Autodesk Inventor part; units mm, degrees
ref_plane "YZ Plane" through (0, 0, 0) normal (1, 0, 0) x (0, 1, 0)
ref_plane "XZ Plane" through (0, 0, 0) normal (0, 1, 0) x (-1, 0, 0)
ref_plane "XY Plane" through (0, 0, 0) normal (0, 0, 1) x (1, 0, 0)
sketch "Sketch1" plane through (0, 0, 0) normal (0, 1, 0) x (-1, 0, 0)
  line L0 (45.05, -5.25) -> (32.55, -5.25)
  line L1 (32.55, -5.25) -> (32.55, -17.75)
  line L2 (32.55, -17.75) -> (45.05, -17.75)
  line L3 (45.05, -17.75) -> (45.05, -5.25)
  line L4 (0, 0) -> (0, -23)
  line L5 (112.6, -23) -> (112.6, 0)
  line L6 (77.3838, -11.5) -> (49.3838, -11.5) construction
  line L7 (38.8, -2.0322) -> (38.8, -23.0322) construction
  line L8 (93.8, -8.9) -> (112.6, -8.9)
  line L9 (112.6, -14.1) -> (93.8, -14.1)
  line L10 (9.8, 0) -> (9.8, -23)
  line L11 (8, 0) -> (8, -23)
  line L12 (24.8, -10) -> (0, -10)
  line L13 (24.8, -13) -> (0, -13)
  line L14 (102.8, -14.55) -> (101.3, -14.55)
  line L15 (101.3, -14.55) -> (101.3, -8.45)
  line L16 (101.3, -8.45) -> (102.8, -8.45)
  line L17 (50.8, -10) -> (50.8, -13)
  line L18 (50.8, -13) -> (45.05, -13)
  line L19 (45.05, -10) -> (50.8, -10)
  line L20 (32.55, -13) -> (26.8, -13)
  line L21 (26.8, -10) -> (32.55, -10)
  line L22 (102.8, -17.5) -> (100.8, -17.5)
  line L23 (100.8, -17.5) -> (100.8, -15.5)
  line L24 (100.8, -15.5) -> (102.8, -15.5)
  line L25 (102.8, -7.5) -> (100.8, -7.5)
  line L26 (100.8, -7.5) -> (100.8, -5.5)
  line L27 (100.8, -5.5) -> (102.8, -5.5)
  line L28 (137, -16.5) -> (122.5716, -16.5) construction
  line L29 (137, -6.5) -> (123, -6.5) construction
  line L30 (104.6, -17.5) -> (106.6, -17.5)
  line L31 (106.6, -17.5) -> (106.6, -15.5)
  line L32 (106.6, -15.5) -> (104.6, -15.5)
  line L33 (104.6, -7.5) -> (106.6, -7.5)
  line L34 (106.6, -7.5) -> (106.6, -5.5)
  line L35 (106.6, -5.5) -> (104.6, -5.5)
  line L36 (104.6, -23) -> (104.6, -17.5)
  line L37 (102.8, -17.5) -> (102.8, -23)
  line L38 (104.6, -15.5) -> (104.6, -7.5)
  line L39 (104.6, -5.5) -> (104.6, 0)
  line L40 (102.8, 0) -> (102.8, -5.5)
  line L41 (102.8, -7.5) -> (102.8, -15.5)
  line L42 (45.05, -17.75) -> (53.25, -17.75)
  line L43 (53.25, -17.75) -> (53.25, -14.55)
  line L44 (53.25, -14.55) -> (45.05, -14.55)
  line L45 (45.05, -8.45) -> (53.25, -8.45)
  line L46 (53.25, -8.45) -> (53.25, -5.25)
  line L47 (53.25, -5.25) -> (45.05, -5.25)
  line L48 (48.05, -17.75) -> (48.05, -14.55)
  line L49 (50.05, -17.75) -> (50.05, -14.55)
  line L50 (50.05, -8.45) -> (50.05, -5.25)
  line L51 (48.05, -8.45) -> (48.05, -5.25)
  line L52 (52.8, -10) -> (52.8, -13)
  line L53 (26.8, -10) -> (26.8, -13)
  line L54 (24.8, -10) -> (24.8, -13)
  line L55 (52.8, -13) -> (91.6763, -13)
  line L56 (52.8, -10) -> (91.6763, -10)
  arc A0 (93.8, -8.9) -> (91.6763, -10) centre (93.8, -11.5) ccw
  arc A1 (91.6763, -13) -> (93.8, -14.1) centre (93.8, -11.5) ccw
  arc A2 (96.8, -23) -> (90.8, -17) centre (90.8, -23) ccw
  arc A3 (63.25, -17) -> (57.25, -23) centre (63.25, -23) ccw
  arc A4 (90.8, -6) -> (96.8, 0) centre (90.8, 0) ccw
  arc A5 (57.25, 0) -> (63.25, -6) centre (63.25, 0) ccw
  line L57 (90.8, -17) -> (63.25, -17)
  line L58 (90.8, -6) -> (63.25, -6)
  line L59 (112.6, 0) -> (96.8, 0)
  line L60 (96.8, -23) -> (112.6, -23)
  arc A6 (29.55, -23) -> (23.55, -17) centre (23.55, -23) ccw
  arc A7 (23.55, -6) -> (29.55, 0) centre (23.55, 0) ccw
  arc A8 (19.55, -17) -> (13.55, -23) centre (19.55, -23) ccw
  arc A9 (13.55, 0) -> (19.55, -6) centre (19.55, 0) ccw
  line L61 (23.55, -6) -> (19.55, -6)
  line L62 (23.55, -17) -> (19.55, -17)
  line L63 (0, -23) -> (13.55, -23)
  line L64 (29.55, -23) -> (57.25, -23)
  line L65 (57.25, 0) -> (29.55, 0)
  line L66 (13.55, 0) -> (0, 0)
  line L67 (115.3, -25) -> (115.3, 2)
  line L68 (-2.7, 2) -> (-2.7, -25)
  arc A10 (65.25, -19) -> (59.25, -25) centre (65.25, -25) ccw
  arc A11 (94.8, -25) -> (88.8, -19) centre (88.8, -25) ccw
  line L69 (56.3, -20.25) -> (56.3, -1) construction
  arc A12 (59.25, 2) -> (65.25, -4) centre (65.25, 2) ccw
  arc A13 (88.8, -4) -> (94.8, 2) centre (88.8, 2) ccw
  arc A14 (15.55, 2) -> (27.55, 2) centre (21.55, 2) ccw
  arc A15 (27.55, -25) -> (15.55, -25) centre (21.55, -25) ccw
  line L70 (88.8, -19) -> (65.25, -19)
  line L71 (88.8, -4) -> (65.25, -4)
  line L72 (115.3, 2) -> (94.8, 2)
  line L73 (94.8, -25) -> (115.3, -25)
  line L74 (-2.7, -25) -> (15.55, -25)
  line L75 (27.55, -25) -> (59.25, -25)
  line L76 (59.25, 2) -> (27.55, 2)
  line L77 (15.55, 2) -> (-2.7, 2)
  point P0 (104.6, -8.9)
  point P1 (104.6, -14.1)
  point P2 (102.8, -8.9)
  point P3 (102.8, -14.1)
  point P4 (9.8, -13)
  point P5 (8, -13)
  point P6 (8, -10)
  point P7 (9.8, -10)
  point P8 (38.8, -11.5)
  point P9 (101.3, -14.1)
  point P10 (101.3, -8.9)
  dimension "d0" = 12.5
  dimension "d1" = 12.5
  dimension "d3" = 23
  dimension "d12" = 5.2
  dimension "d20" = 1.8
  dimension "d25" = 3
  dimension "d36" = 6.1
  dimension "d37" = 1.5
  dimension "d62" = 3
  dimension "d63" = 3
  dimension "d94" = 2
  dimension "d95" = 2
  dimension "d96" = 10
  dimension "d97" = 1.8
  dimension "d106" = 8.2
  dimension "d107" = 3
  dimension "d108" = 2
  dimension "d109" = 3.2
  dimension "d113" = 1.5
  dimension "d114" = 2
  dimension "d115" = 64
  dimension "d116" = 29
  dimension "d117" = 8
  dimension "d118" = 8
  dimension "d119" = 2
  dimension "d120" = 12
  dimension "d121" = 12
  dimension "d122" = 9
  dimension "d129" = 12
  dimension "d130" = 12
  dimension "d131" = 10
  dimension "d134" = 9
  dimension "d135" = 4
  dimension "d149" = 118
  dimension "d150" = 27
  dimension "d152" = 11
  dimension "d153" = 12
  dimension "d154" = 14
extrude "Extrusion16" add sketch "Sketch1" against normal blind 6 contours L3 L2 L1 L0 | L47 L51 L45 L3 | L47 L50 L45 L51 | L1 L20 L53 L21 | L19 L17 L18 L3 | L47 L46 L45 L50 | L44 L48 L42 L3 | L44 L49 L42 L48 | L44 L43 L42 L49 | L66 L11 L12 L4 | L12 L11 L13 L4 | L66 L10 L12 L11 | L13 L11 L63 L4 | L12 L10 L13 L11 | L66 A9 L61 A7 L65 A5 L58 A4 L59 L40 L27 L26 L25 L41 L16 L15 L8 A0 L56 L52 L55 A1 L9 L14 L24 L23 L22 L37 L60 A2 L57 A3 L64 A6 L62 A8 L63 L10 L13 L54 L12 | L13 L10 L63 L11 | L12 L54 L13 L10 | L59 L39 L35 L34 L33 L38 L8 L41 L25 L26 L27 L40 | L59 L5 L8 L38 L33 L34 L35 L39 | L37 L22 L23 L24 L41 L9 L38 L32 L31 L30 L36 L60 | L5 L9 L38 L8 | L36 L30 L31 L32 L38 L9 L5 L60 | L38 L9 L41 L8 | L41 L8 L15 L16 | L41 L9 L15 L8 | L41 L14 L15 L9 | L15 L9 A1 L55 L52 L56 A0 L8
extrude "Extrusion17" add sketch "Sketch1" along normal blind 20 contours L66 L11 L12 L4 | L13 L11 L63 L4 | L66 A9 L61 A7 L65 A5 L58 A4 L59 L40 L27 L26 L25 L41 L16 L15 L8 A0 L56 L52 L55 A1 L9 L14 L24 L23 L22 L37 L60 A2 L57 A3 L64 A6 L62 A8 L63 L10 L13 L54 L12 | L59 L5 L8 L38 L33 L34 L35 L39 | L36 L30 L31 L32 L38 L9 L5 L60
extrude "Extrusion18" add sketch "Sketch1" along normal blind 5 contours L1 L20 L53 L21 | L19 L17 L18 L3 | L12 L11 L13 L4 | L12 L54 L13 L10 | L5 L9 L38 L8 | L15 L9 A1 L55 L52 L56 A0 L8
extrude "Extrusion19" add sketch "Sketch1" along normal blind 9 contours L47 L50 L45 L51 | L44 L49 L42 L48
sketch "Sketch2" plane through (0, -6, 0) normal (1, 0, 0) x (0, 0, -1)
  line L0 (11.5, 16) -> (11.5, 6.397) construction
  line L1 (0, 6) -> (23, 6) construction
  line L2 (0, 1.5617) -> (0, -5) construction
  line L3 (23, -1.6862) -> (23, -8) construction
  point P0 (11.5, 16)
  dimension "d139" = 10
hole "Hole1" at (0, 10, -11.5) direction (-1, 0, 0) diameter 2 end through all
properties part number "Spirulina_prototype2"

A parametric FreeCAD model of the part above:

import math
import FreeCAD as App
import Part
import Sketcher
Q = App.Units.Quantity


def add_polygon(sketch, points):
    """Adds a closed chain of lines whose ends are joined by coincident constraints."""
    first, n = sketch.GeometryCount, len(points)
    for a, b in zip(points, points[1:] + points[:1]):
        sketch.addGeometry(Part.LineSegment(App.Vector(*a, 0), App.Vector(*b, 0)), False)
    for i in range(n):
        sketch.addConstraint(Sketcher.Constraint("Coincident", first + i, 2, first + (i + 1) % n, 1))

doc = App.newDocument("Part")
body = doc.addObject("PartDesign::Body", "Body")

# Sketch on XZ plane
sketch1 = body.newObject("Sketcher::SketchObject", "Sketch")
sketch1.AttachmentSupport = (doc.getObject("XZ_Plane"), [""])
sketch1.MapMode = "FlatFace"
sketch1.addGeometry(Part.LineSegment(App.Vector(-13.6, 0, 0), App.Vector(0, 0, 0)), False)
sketch1.addGeometry(Part.LineSegment(App.Vector(0, 0, 0), App.Vector(0, -23, 0)), False)
sketch1.addGeometry(Part.LineSegment(App.Vector(0, -23, 0), App.Vector(-13.6, -23, 0)), False)
sketch1.addGeometry(Part.ArcOfCircle(Part.Circle(App.Vector(-19.6, -23, 0), App.Vector(0, 0, 1), 6), math.radians(0), math.radians(90)), False)
sketch1.addGeometry(Part.LineSegment(App.Vector(-19.6, -17, 0), App.Vector(-23.6, -17, 0)), False)
sketch1.addGeometry(Part.ArcOfCircle(Part.Circle(App.Vector(-23.6, -23, 0), App.Vector(0, 0, 1), 6), math.radians(90), math.radians(180)), False)
sketch1.addGeometry(Part.LineSegment(App.Vector(-29.6, -23, 0), App.Vector(-57.2, -23, 0)), False)
sketch1.addGeometry(Part.ArcOfCircle(Part.Circle(App.Vector(-63.2, -23, 0), App.Vector(0, 0, 1), 6), math.radians(0), math.radians(90)), False)
sketch1.addGeometry(Part.LineSegment(App.Vector(-63.2, -17, 0), App.Vector(-90.8, -17, 0)), False)
sketch1.addGeometry(Part.ArcOfCircle(Part.Circle(App.Vector(-90.8, -23, 0), App.Vector(0, 0, 1), 6), math.radians(90), math.radians(180)), False)
sketch1.addGeometry(Part.LineSegment(App.Vector(-96.8, -23, 0), App.Vector(-112.6, -23, 0)), False)
sketch1.addGeometry(Part.LineSegment(App.Vector(-112.6, -23, 0), App.Vector(-112.6, 0, 0)), False)
sketch1.addGeometry(Part.LineSegment(App.Vector(-112.6, 0, 0), App.Vector(-96.8, 0, 0)), False)
sketch1.addGeometry(Part.ArcOfCircle(Part.Circle(App.Vector(-90.8, 0, 0), App.Vector(0, 0, 1), 6), math.radians(180), math.radians(270)), False)
sketch1.addGeometry(Part.LineSegment(App.Vector(-90.8, -6, 0), App.Vector(-63.2, -6, 0)), False)
sketch1.addGeometry(Part.ArcOfCircle(Part.Circle(App.Vector(-63.2, 0, 0), App.Vector(0, 0, 1), 6), math.radians(-90), math.radians(0)), False)
sketch1.addGeometry(Part.LineSegment(App.Vector(-57.2, 0, 0), App.Vector(-29.6, 0, 0)), False)
sketch1.addGeometry(Part.ArcOfCircle(Part.Circle(App.Vector(-23.6, 0, 0), App.Vector(0, 0, 1), 6), math.radians(180), math.radians(270)), False)
sketch1.addGeometry(Part.LineSegment(App.Vector(-23.6, -6, 0), App.Vector(-19.6, -6, 0)), False)
sketch1.addGeometry(Part.ArcOfCircle(Part.Circle(App.Vector(-19.6, 0, 0), App.Vector(0, 0, 1), 6), math.radians(-90), math.radians(0)), False)
sketch1.addConstraint(Sketcher.Constraint("Coincident", 0, 2, 1, 1))
sketch1.addConstraint(Sketcher.Constraint("Coincident", 1, 2, 2, 1))
sketch1.addConstraint(Sketcher.Constraint("Coincident", 2, 2, 3, 1))
sketch1.addConstraint(Sketcher.Constraint("Tangent", 3, 2, 4, 1))
sketch1.addConstraint(Sketcher.Constraint("Tangent", 4, 2, 5, 1))
sketch1.addConstraint(Sketcher.Constraint("Coincident", 5, 2, 6, 1))
sketch1.addConstraint(Sketcher.Constraint("Coincident", 6, 2, 7, 1))
sketch1.addConstraint(Sketcher.Constraint("Tangent", 7, 2, 8, 1))
sketch1.addConstraint(Sketcher.Constraint("Tangent", 8, 2, 9, 1))
sketch1.addConstraint(Sketcher.Constraint("Coincident", 9, 2, 10, 1))
sketch1.addConstraint(Sketcher.Constraint("Coincident", 10, 2, 11, 1))
sketch1.addConstraint(Sketcher.Constraint("Coincident", 11, 2, 12, 1))
sketch1.addConstraint(Sketcher.Constraint("Coincident", 12, 2, 13, 1))
sketch1.addConstraint(Sketcher.Constraint("Tangent", 13, 2, 14, 1))
sketch1.addConstraint(Sketcher.Constraint("Tangent", 14, 2, 15, 1))
sketch1.addConstraint(Sketcher.Constraint("Coincident", 15, 2, 16, 1))
sketch1.addConstraint(Sketcher.Constraint("Coincident", 16, 2, 17, 1))
sketch1.addConstraint(Sketcher.Constraint("Tangent", 17, 2, 18, 1))
sketch1.addConstraint(Sketcher.Constraint("Tangent", 18, 2, 19, 1))
sketch1.addConstraint(Sketcher.Constraint("Coincident", 19, 2, 0, 1))
sketch1.addConstraint(Sketcher.Constraint("Horizontal", 0))
sketch1.addConstraint(Sketcher.Constraint("Vertical", 1))
sketch1.addConstraint(Sketcher.Constraint("Horizontal", 2))
sketch1.addConstraint(Sketcher.Constraint("Horizontal", 4))
sketch1.addConstraint(Sketcher.Constraint("Horizontal", 6))
sketch1.addConstraint(Sketcher.Constraint("Horizontal", 8))
sketch1.addConstraint(Sketcher.Constraint("Horizontal", 10))
sketch1.addConstraint(Sketcher.Constraint("Vertical", 11))
sketch1.addConstraint(Sketcher.Constraint("Horizontal", 12))
sketch1.addConstraint(Sketcher.Constraint("Horizontal", 14))
sketch1.addConstraint(Sketcher.Constraint("Horizontal", 16))
sketch1.addConstraint(Sketcher.Constraint("Horizontal", 18))
sketch1.addConstraint(Sketcher.Constraint("Coincident", 0, 2, -1, 1))
sketch1.addConstraint(Sketcher.Constraint("Equal", 3, 5))
sketch1.addConstraint(Sketcher.Constraint("Equal", 5, 7))
sketch1.addConstraint(Sketcher.Constraint("Equal", 7, 9))
sketch1.addConstraint(Sketcher.Constraint("Equal", 9, 13))
sketch1.addConstraint(Sketcher.Constraint("Equal", 13, 15))
sketch1.addConstraint(Sketcher.Constraint("Equal", 15, 17))
sketch1.addConstraint(Sketcher.Constraint("Equal", 17, 19))
sketch1.addConstraint(Sketcher.Constraint("PointOnObject", 13, 3, -1))
sketch1.addConstraint(Sketcher.Constraint("PointOnObject", 17, 3, -1))
sketch1.addConstraint(Sketcher.Constraint("PointOnObject", 11, 2, -1))
sketch1.addConstraint(Sketcher.Constraint("PointOnObject", 15, 2, -1))
sketch1.addConstraint(Sketcher.Constraint("Horizontal", 5, 3, 7, 3))
sketch1.addConstraint(Sketcher.Constraint("Horizontal", 9, 3, 1, 2))
sketch1.addConstraint(Sketcher.Constraint("Horizontal", 2, 2, 5, 2))
sketch1.addConstraint(Sketcher.Constraint("Horizontal", 6, 2, 9, 2))
sketch1.addConstraint(Sketcher.Constraint("Vertical", 9, 3, 13, 3))
sketch1.addConstraint(Sketcher.Constraint("Vertical", 7, 3, 15, 3))
sketch1.addConstraint(Sketcher.Constraint("Vertical", 5, 3, 17, 3))
sketch1.addConstraint(Sketcher.Constraint("Vertical", 3, 3, 19, 3))
sketch1.addConstraint(Sketcher.Constraint("Radius", 3, Q("6 mm")))
sketch1.addConstraint(Sketcher.Constraint("DistanceX", 4, 2, 4, 1, Q("4 mm")))
sketch1.addConstraint(Sketcher.Constraint("DistanceY", 1, 2, 1, 1, Q("23 mm")))
sketch1.addConstraint(Sketcher.Constraint("DistanceX", 6, 2, 6, 1, Q("27.7 mm")))
sketch1.addConstraint(Sketcher.Constraint("DistanceX", 10, 2, 10, 1, Q("15.8 mm")))
sketch1.addConstraint(Sketcher.Constraint("DistanceX", 0, 1, 0, 2, Q("13.55 mm")))
sketch1.addConstraint(Sketcher.Constraint("DistanceX", 8, 2, 8, 1, Q("27.55 mm")))
pad1 = body.newObject("PartDesign::Pad", "Pad")
pad1.Profile = sketch1
pad1.Length = 6

# Sketch on XZ plane
sketch2 = body.newObject("Sketcher::SketchObject", "Sketch001")
sketch2.AttachmentSupport = (doc.getObject("XZ_Plane"), [""])
sketch2.MapMode = "FlatFace"
add_polygon(sketch2, [(-8, 0), (0, 0), (0, -10), (-8, -10)])  # lines 0-3
add_polygon(sketch2, [(-8, -13), (0, -13), (0, -23), (-8, -23)])  # lines 4-7
sketch2.addGeometry(Part.LineSegment(App.Vector(-13.55, 0, 0), App.Vector(-9.8, 0, 0)), False)  # 8
sketch2.addGeometry(Part.LineSegment(App.Vector(-9.8, 0, 0), App.Vector(-9.8, -10, 0)), False)  # 9
sketch2.addGeometry(Part.LineSegment(App.Vector(-9.8, -10, 0), App.Vector(-24.8, -10, 0)), False)  # 10
sketch2.addGeometry(Part.LineSegment(App.Vector(-24.8, -10, 0), App.Vector(-24.8, -13, 0)), False)  # 11
sketch2.addGeometry(Part.LineSegment(App.Vector(-24.8, -13, 0), App.Vector(-9.8, -13, 0)), False)  # 12
sketch2.addGeometry(Part.LineSegment(App.Vector(-9.8, -13, 0), App.Vector(-9.8, -23, 0)), False)  # 13
sketch2.addGeometry(Part.LineSegment(App.Vector(-9.8, -23, 0), App.Vector(-13.55, -23, 0)), False)  # 14
sketch2.addGeometry(Part.ArcOfCircle(Part.Circle(App.Vector(-19.55, -23, 0), App.Vector(0, 0, 1), 6), math.radians(0), math.radians(90)), False)  # 15
sketch2.addGeometry(Part.LineSegment(App.Vector(-19.55, -17, 0), App.Vector(-23.55, -17, 0)), False)  # 16
sketch2.addGeometry(Part.ArcOfCircle(Part.Circle(App.Vector(-23.55, -23, 0), App.Vector(0, 0, 1), 6), math.radians(90), math.radians(180)), False)  # 17
sketch2.addGeometry(Part.LineSegment(App.Vector(-29.55, -23, 0), App.Vector(-57.25, -23, 0)), False)  # 18
sketch2.addGeometry(Part.ArcOfCircle(Part.Circle(App.Vector(-63.25, -23, 0), App.Vector(0, 0, 1), 6), math.radians(0), math.radians(90)), False)  # 19
sketch2.addGeometry(Part.LineSegment(App.Vector(-63.25, -17, 0), App.Vector(-90.8, -17, 0)), False)  # 20
sketch2.addGeometry(Part.ArcOfCircle(Part.Circle(App.Vector(-90.8, -23, 0), App.Vector(0, 0, 1), 6), math.radians(90), math.radians(180)), False)  # 21
sketch2.addGeometry(Part.LineSegment(App.Vector(-96.8, -23, 0), App.Vector(-102.8, -23, 0)), False)  # 22
sketch2.addGeometry(Part.LineSegment(App.Vector(-102.8, -23, 0), App.Vector(-102.8, -17.5, 0)), False)  # 23
sketch2.addGeometry(Part.LineSegment(App.Vector(-102.8, -17.5, 0), App.Vector(-100.8, -17.5, 0)), False)  # 24
sketch2.addGeometry(Part.LineSegment(App.Vector(-100.8, -17.5, 0), App.Vector(-100.8, -15.5, 0)), False)  # 25
sketch2.addGeometry(Part.LineSegment(App.Vector(-100.8, -15.5, 0), App.Vector(-102.8, -15.5, 0)), False)  # 26
sketch2.addGeometry(Part.LineSegment(App.Vector(-102.8, -15.5, 0), App.Vector(-102.8, -14.55, 0)), False)  # 27
sketch2.addGeometry(Part.LineSegment(App.Vector(-102.8, -14.55, 0), App.Vector(-101.3, -14.55, 0)), False)  # 28
sketch2.addGeometry(Part.LineSegment(App.Vector(-101.3, -14.55, 0), App.Vector(-101.3, -14.1, 0)), False)  # 29
sketch2.addGeometry(Part.LineSegment(App.Vector(-101.3, -14.1, 0), App.Vector(-93.8, -14.1, 0)), False)  # 30
sketch2.addGeometry(Part.ArcOfCircle(Part.Circle(App.Vector(-93.8, -11.5, 0), App.Vector(0, 0, 1), 2.6), math.radians(-90), math.radians(-35)), False)  # 31
sketch2.addGeometry(Part.LineSegment(App.Vector(-91.68, -13, 0), App.Vector(-52.8, -13, 0)), False)  # 32
sketch2.addGeometry(Part.LineSegment(App.Vector(-52.8, -13, 0), App.Vector(-52.8, -10, 0)), False)  # 33
sketch2.addGeometry(Part.LineSegment(App.Vector(-52.8, -10, 0), App.Vector(-91.68, -10, 0)), False)  # 34
sketch2.addGeometry(Part.ArcOfCircle(Part.Circle(App.Vector(-93.8, -11.5, 0), App.Vector(0, 0, 1), 2.6), math.radians(35), math.radians(90)), False)  # 35
sketch2.addGeometry(Part.LineSegment(App.Vector(-93.8, -8.9, 0), App.Vector(-101.3, -8.9, 0)), False)  # 36
sketch2.addGeometry(Part.LineSegment(App.Vector(-101.3, -8.9, 0), App.Vector(-101.3, -8.45, 0)), False)  # 37
sketch2.addGeometry(Part.LineSegment(App.Vector(-101.3, -8.45, 0), App.Vector(-102.8, -8.45, 0)), False)  # 38
sketch2.addGeometry(Part.LineSegment(App.Vector(-102.8, -8.45, 0), App.Vector(-102.8, -7.5, 0)), False)  # 39
sketch2.addGeometry(Part.LineSegment(App.Vector(-102.8, -7.5, 0), App.Vector(-100.8, -7.5, 0)), False)  # 40
sketch2.addGeometry(Part.LineSegment(App.Vector(-100.8, -7.5, 0), App.Vector(-100.8, -5.5, 0)), False)  # 41
sketch2.addGeometry(Part.LineSegment(App.Vector(-100.8, -5.5, 0), App.Vector(-102.8, -5.5, 0)), False)  # 42
sketch2.addGeometry(Part.LineSegment(App.Vector(-102.8, -5.5, 0), App.Vector(-102.8, 0, 0)), False)  # 43
sketch2.addGeometry(Part.LineSegment(App.Vector(-102.8, 0, 0), App.Vector(-96.8, 0, 0)), False)  # 44
sketch2.addGeometry(Part.ArcOfCircle(Part.Circle(App.Vector(-90.8, 0, 0), App.Vector(0, 0, 1), 6), math.radians(180), math.radians(270)), False)  # 45
sketch2.addGeometry(Part.LineSegment(App.Vector(-90.8, -6, 0), App.Vector(-63.25, -6, 0)), False)  # 46
sketch2.addGeometry(Part.ArcOfCircle(Part.Circle(App.Vector(-63.25, 0, 0), App.Vector(0, 0, 1), 6), math.radians(-90), math.radians(0)), False)  # 47
sketch2.addGeometry(Part.LineSegment(App.Vector(-57.25, 0, 0), App.Vector(-29.55, 0, 0)), False)  # 48
sketch2.addGeometry(Part.ArcOfCircle(Part.Circle(App.Vector(-23.55, 0, 0), App.Vector(0, 0, 1), 6), math.radians(180), math.radians(270)), False)  # 49
sketch2.addGeometry(Part.LineSegment(App.Vector(-23.55, -6, 0), App.Vector(-19.55, -6, 0)), False)  # 50
sketch2.addGeometry(Part.ArcOfCircle(Part.Circle(App.Vector(-19.55, 0, 0), App.Vector(0, 0, 1), 6), math.radians(-90), math.radians(0)), False)  # 51
add_polygon(sketch2, [(-32.55, -5.25), (-53.25, -5.25), (-53.25, -8.45), (-45.05, -8.45), (-45.05, -10), (-50.8, -10), (-50.8, -13), (-45.05, -13), (-45.05, -14.55), (-53.25, -14.55), (-53.25, -17.75), (-32.55, -17.75), (-32.55, -13), (-26.8, -13), (-26.8, -10), (-32.55, -10)])  # lines 52-67
add_polygon(sketch2, [(-112.6, 0), (-104.6, 0), (-104.6, -5.5), (-106.6, -5.5), (-106.6, -7.5), (-104.6, -7.5), (-104.6, -8.9), (-112.6, -8.9)])  # lines 68-75
add_polygon(sketch2, [(-104.6, -17.5), (-104.6, -23), (-112.6, -23), (-112.6, -14.1), (-104.6, -14.1), (-104.6, -15.5), (-106.6, -15.5), (-106.6, -17.5)])  # lines 76-83
sketch2.addConstraint(Sketcher.Constraint("Coincident", 8, 2, 9, 1))
sketch2.addConstraint(Sketcher.Constraint("Coincident", 9, 2, 10, 1))
sketch2.addConstraint(Sketcher.Constraint("Coincident", 10, 2, 11, 1))
sketch2.addConstraint(Sketcher.Constraint("Coincident", 11, 2, 12, 1))
sketch2.addConstraint(Sketcher.Constraint("Coincident", 12, 2, 13, 1))
sketch2.addConstraint(Sketcher.Constraint("Coincident", 13, 2, 14, 1))
sketch2.addConstraint(Sketcher.Constraint("Coincident", 14, 2, 15, 1))
sketch2.addConstraint(Sketcher.Constraint("Tangent", 15, 2, 16, 1))
sketch2.addConstraint(Sketcher.Constraint("Tangent", 16, 2, 17, 1))
sketch2.addConstraint(Sketcher.Constraint("Coincident", 17, 2, 18, 1))
sketch2.addConstraint(Sketcher.Constraint("Coincident", 18, 2, 19, 1))
sketch2.addConstraint(Sketcher.Constraint("Tangent", 19, 2, 20, 1))
sketch2.addConstraint(Sketcher.Constraint("Tangent", 20, 2, 21, 1))
sketch2.addConstraint(Sketcher.Constraint("Coincident", 21, 2, 22, 1))
sketch2.addConstraint(Sketcher.Constraint("Coincident", 22, 2, 23, 1))
sketch2.addConstraint(Sketcher.Constraint("Coincident", 23, 2, 24, 1))
sketch2.addConstraint(Sketcher.Constraint("Coincident", 24, 2, 25, 1))
sketch2.addConstraint(Sketcher.Constraint("Coincident", 25, 2, 26, 1))
sketch2.addConstraint(Sketcher.Constraint("Coincident", 26, 2, 27, 1))
sketch2.addConstraint(Sketcher.Constraint("Coincident", 27, 2, 28, 1))
sketch2.addConstraint(Sketcher.Constraint("Coincident", 28, 2, 29, 1))
sketch2.addConstraint(Sketcher.Constraint("Coincident", 29, 2, 30, 1))
sketch2.addConstraint(Sketcher.Constraint("Tangent", 30, 2, 31, 1))
sketch2.addConstraint(Sketcher.Constraint("Coincident", 31, 2, 32, 1))
sketch2.addConstraint(Sketcher.Constraint("Coincident", 32, 2, 33, 1))
sketch2.addConstraint(Sketcher.Constraint("Coincident", 33, 2, 34, 1))
sketch2.addConstraint(Sketcher.Constraint("Coincident", 34, 2, 35, 1))
sketch2.addConstraint(Sketcher.Constraint("Tangent", 35, 2, 36, 1))
sketch2.addConstraint(Sketcher.Constraint("Coincident", 36, 2, 37, 1))
sketch2.addConstraint(Sketcher.Constraint("Coincident", 37, 2, 38, 1))
sketch2.addConstraint(Sketcher.Constraint("Coincident", 38, 2, 39, 1))
sketch2.addConstraint(Sketcher.Constraint("Coincident", 39, 2, 40, 1))
sketch2.addConstraint(Sketcher.Constraint("Coincident", 40, 2, 41, 1))
sketch2.addConstraint(Sketcher.Constraint("Coincident", 41, 2, 42, 1))
sketch2.addConstraint(Sketcher.Constraint("Coincident", 42, 2, 43, 1))
sketch2.addConstraint(Sketcher.Constraint("Coincident", 43, 2, 44, 1))
sketch2.addConstraint(Sketcher.Constraint("Coincident", 44, 2, 45, 1))
sketch2.addConstraint(Sketcher.Constraint("Tangent", 45, 2, 46, 1))
sketch2.addConstraint(Sketcher.Constraint("Tangent", 46, 2, 47, 1))
sketch2.addConstraint(Sketcher.Constraint("Coincident", 47, 2, 48, 1))
sketch2.addConstraint(Sketcher.Constraint("Coincident", 48, 2, 49, 1))
sketch2.addConstraint(Sketcher.Constraint("Tangent", 49, 2, 50, 1))
sketch2.addConstraint(Sketcher.Constraint("Tangent", 50, 2, 51, 1))
sketch2.addConstraint(Sketcher.Constraint("Coincident", 51, 2, 8, 1))
sketch2.addConstraint(Sketcher.Constraint("Horizontal", 0))
sketch2.addConstraint(Sketcher.Constraint("Vertical", 1))
sketch2.addConstraint(Sketcher.Constraint("Horizontal", 2))
sketch2.addConstraint(Sketcher.Constraint("Vertical", 3))
sketch2.addConstraint(Sketcher.Constraint("Horizontal", 4))
sketch2.addConstraint(Sketcher.Constraint("Vertical", 5))
sketch2.addConstraint(Sketcher.Constraint("Horizontal", 6))
sketch2.addConstraint(Sketcher.Constraint("Vertical", 7))
sketch2.addConstraint(Sketcher.Constraint("Horizontal", 8))
sketch2.addConstraint(Sketcher.Constraint("Vertical", 9))
sketch2.addConstraint(Sketcher.Constraint("Horizontal", 10))
sketch2.addConstraint(Sketcher.Constraint("Vertical", 11))
sketch2.addConstraint(Sketcher.Constraint("Horizontal", 12))
sketch2.addConstraint(Sketcher.Constraint("Vertical", 13))
sketch2.addConstraint(Sketcher.Constraint("Horizontal", 14))
sketch2.addConstraint(Sketcher.Constraint("Horizontal", 16))
sketch2.addConstraint(Sketcher.Constraint("Horizontal", 18))
sketch2.addConstraint(Sketcher.Constraint("Horizontal", 20))
sketch2.addConstraint(Sketcher.Constraint("Horizontal", 22))
sketch2.addConstraint(Sketcher.Constraint("Vertical", 23))
sketch2.addConstraint(Sketcher.Constraint("Horizontal", 24))
sketch2.addConstraint(Sketcher.Constraint("Vertical", 25))
sketch2.addConstraint(Sketcher.Constraint("Horizontal", 26))
sketch2.addConstraint(Sketcher.Constraint("Vertical", 27))
sketch2.addConstraint(Sketcher.Constraint("Horizontal", 28))
sketch2.addConstraint(Sketcher.Constraint("Vertical", 29))
sketch2.addConstraint(Sketcher.Constraint("Horizontal", 30))
sketch2.addConstraint(Sketcher.Constraint("Horizontal", 32))
sketch2.addConstraint(Sketcher.Constraint("Vertical", 33))
sketch2.addConstraint(Sketcher.Constraint("Horizontal", 34))
sketch2.addConstraint(Sketcher.Constraint("Horizontal", 36))
sketch2.addConstraint(Sketcher.Constraint("Vertical", 37))
sketch2.addConstraint(Sketcher.Constraint("Horizontal", 38))
sketch2.addConstraint(Sketcher.Constraint("Vertical", 39))
sketch2.addConstraint(Sketcher.Constraint("Horizontal", 40))
sketch2.addConstraint(Sketcher.Constraint("Vertical", 41))
sketch2.addConstraint(Sketcher.Constraint("Horizontal", 42))
sketch2.addConstraint(Sketcher.Constraint("Vertical", 43))
sketch2.addConstraint(Sketcher.Constraint("Horizontal", 44))
sketch2.addConstraint(Sketcher.Constraint("Horizontal", 46))
sketch2.addConstraint(Sketcher.Constraint("Horizontal", 48))
sketch2.addConstraint(Sketcher.Constraint("Horizontal", 50))
sketch2.addConstraint(Sketcher.Constraint("Horizontal", 52))
sketch2.addConstraint(Sketcher.Constraint("Vertical", 53))
sketch2.addConstraint(Sketcher.Constraint("Horizontal", 54))
sketch2.addConstraint(Sketcher.Constraint("Vertical", 55))
sketch2.addConstraint(Sketcher.Constraint("Horizontal", 56))
sketch2.addConstraint(Sketcher.Constraint("Vertical", 57))
sketch2.addConstraint(Sketcher.Constraint("Horizontal", 58))
sketch2.addConstraint(Sketcher.Constraint("Vertical", 59))
sketch2.addConstraint(Sketcher.Constraint("Horizontal", 60))
sketch2.addConstraint(Sketcher.Constraint("Vertical", 61))
sketch2.addConstraint(Sketcher.Constraint("Horizontal", 62))
sketch2.addConstraint(Sketcher.Constraint("Vertical", 63))
sketch2.addConstraint(Sketcher.Constraint("Horizontal", 64))
sketch2.addConstraint(Sketcher.Constraint("Vertical", 65))
sketch2.addConstraint(Sketcher.Constraint("Horizontal", 66))
sketch2.addConstraint(Sketcher.Constraint("Vertical", 67))
sketch2.addConstraint(Sketcher.Constraint("Horizontal", 68))
sketch2.addConstraint(Sketcher.Constraint("Vertical", 69))
sketch2.addConstraint(Sketcher.Constraint("Horizontal", 70))
sketch2.addConstraint(Sketcher.Constraint("Vertical", 71))
sketch2.addConstraint(Sketcher.Constraint("Horizontal", 72))
sketch2.addConstraint(Sketcher.Constraint("Vertical", 73))
sketch2.addConstraint(Sketcher.Constraint("Horizontal", 74))
sketch2.addConstraint(Sketcher.Constraint("Vertical", 75))
sketch2.addConstraint(Sketcher.Constraint("Vertical", 76))
sketch2.addConstraint(Sketcher.Constraint("Horizontal", 77))
sketch2.addConstraint(Sketcher.Constraint("Vertical", 78))
sketch2.addConstraint(Sketcher.Constraint("Horizontal", 79))
sketch2.addConstraint(Sketcher.Constraint("Vertical", 80))
sketch2.addConstraint(Sketcher.Constraint("Horizontal", 81))
sketch2.addConstraint(Sketcher.Constraint("Vertical", 82))
sketch2.addConstraint(Sketcher.Constraint("Horizontal", 83))
sketch2.addConstraint(Sketcher.Constraint("Coincident", 0, 2, -1, 1))
sketch2.addConstraint(Sketcher.Constraint("Coincident", 35, 3, 31, 3))
sketch2.addConstraint(Sketcher.Constraint("Equal", 15, 17))
sketch2.addConstraint(Sketcher.Constraint("Equal", 17, 19))
sketch2.addConstraint(Sketcher.Constraint("Equal", 19, 21))
sketch2.addConstraint(Sketcher.Constraint("Equal", 31, 35))
sketch2.addConstraint(Sketcher.Constraint("Equal", 21, 45))
sketch2.addConstraint(Sketcher.Constraint("Equal", 45, 47))
sketch2.addConstraint(Sketcher.Constraint("Equal", 47, 49))
sketch2.addConstraint(Sketcher.Constraint("Equal", 49, 51))
sketch2.addConstraint(Sketcher.Constraint("PointOnObject", 45, 3, -1))
sketch2.addConstraint(Sketcher.Constraint("PointOnObject", 49, 3, -1))
sketch2.addConstraint(Sketcher.Constraint("PointOnObject", 4, 2, -2))
sketch2.addConstraint(Sketcher.Constraint("PointOnObject", 8, 2, -1))
sketch2.addConstraint(Sketcher.Constraint("PointOnObject", 43, 2, -1))
sketch2.addConstraint(Sketcher.Constraint("PointOnObject", 47, 2, -1))
sketch2.addConstraint(Sketcher.Constraint("PointOnObject", 68, 2, -1))
sketch2.addConstraint(Sketcher.Constraint("Horizontal", 17, 3, 19, 3))
sketch2.addConstraint(Sketcher.Constraint("Horizontal", 21, 3, 5, 2))
sketch2.addConstraint(Sketcher.Constraint("Horizontal", 2, 2, 9, 2))
sketch2.addConstraint(Sketcher.Constraint("Horizontal", 7, 2, 11, 2))
sketch2.addConstraint(Sketcher.Constraint("Horizontal", 6, 2, 13, 2))
sketch2.addConstraint(Sketcher.Constraint("Horizontal", 14, 2, 17, 2))
sketch2.addConstraint(Sketcher.Constraint("Horizontal", 18, 2, 21, 2))
sketch2.addConstraint(Sketcher.Constraint("Horizontal", 12, 2, 31, 2))
sketch2.addConstraint(Sketcher.Constraint("Horizontal", 10, 2, 33, 2))
sketch2.addConstraint(Sketcher.Constraint("Horizontal", 38, 2, 53, 2))
sketch2.addConstraint(Sketcher.Constraint("Horizontal", 34, 2, 55, 2))
sketch2.addConstraint(Sketcher.Constraint("Horizontal", 32, 2, 57, 2))
sketch2.addConstraint(Sketcher.Constraint("Horizontal", 28, 2, 59, 2))
sketch2.addConstraint(Sketcher.Constraint("Horizontal", 58, 2, 63, 2))
sketch2.addConstraint(Sketcher.Constraint("Horizontal", 56, 2, 65, 2))
sketch2.addConstraint(Sketcher.Constraint("Horizontal", 42, 2, 69, 2))
sketch2.addConstraint(Sketcher.Constraint("Horizontal", 40, 2, 71, 2))
sketch2.addConstraint(Sketcher.Constraint("Horizontal", 36, 2, 73, 2))
sketch2.addConstraint(Sketcher.Constraint("Horizontal", 22, 2, 76, 2))
sketch2.addConstraint(Sketcher.Constraint("Horizontal", 30, 2, 78, 2))
sketch2.addConstraint(Sketcher.Constraint("Horizontal", 26, 2, 80, 2))
sketch2.addConstraint(Sketcher.Constraint("Horizontal", 24, 2, 82, 2))
sketch2.addConstraint(Sketcher.Constraint("Vertical", 21, 3, 45, 3))
sketch2.addConstraint(Sketcher.Constraint("Vertical", 19, 3, 47, 3))
sketch2.addConstraint(Sketcher.Constraint("Vertical", 17, 3, 49, 3))
sketch2.addConstraint(Sketcher.Constraint("Vertical", 15, 3, 51, 3))
sketch2.addConstraint(Sketcher.Constraint("Vertical", 3, 2, 6, 2))
sketch2.addConstraint(Sketcher.Constraint("Vertical", 9, 2, 12, 2))
sketch2.addConstraint(Sketcher.Constraint("Vertical", 23, 2, 26, 2))
sketch2.addConstraint(Sketcher.Constraint("Vertical", 31, 2, 34, 2))
sketch2.addConstraint(Sketcher.Constraint("Vertical", 29, 2, 36, 2))
sketch2.addConstraint(Sketcher.Constraint("Vertical", 27, 2, 38, 2))
sketch2.addConstraint(Sketcher.Constraint("Vertical", 25, 2, 40, 2))
sketch2.addConstraint(Sketcher.Constraint("Vertical", 39, 2, 42, 2))
sketch2.addConstraint(Sketcher.Constraint("Vertical", 55, 2, 58, 2))
sketch2.addConstraint(Sketcher.Constraint("Vertical", 53, 2, 60, 2))
sketch2.addConstraint(Sketcher.Constraint("Vertical", 63, 2, 66, 2))
sketch2.addConstraint(Sketcher.Constraint("Vertical", 69, 2, 72, 2))
sketch2.addConstraint(Sketcher.Constraint("Vertical", 73, 2, 76, 2))
sketch2.addConstraint(Sketcher.Constraint("Vertical", 75, 2, 77, 2))
sketch2.addConstraint(Sketcher.Constraint("Vertical", 76, 2, 79, 2))
sketch2.addConstraint(Sketcher.Constraint("Vertical", 71, 2, 81, 2))
sketch2.addConstraint(Sketcher.Constraint("Equal", 58, 64))
sketch2.addConstraint(Sketcher.Constraint("Equal", 6, 68))
sketch2.addConstraint(Sketcher.Constraint("Equal", 42, 70))
sketch2.addConstraint(Sketcher.Constraint("Equal", 3, 5))
sketch2.addConstraint(Sketcher.Constraint("Equal", 83, 25))
sketch2.addConstraint(Sketcher.Constraint("Equal", 29, 37))
sketch2.addConstraint(Sketcher.Constraint("Equal", 27, 39))
sketch2.addConstraint(Sketcher.Constraint("Equal", 25, 41))
sketch2.addConstraint(Sketcher.Constraint("Equal", 53, 61))
sketch2.addConstraint(Sketcher.Constraint("Radius", 15, Q("6 mm")))
sketch2.addConstraint(Sketcher.Constraint("Radius", 31, Q("2.6 mm")))
sketch2.addConstraint(Sketcher.Constraint("DistanceX", 0, 1, 0, 2, Q("8 mm")))
sketch2.addConstraint(Sketcher.Constraint("DistanceX", 16, 2, 16, 1, Q("4 mm")))
sketch2.addConstraint(Sketcher.Constraint("DistanceX", 24, 1, 24, 2, Q("2 mm")))
sketch2.addConstraint(Sketcher.Constraint("DistanceY", 1, 2, 1, 1, Q("10 mm")))
sketch2.addConstraint(Sketcher.Constraint("DistanceY", 11, 2, 11, 1, Q("3 mm")))
sketch2.addConstraint(Sketcher.Constraint("DistanceX", 28, 1, 28, 2, Q("1.5 mm")))
sketch2.addConstraint(Sketcher.Constraint("DistanceX", 54, 1, 54, 2, Q("8.2 mm")))
sketch2.addConstraint(Sketcher.Constraint("DistanceY", 53, 2, 53, 1, Q("3.2 mm")))
sketch2.addConstraint(Sketcher.Constraint("DistanceX", 10, 2, 10, 1, Q("15 mm")))
sketch2.addConstraint(Sketcher.Constraint("DistanceX", 22, 2, 22, 1, Q("6 mm")))
sketch2.addConstraint(Sketcher.Constraint("DistanceX", 18, 2, 18, 1, Q("27.7 mm")))
sketch2.addConstraint(Sketcher.Constraint("DistanceX", 30, 1, 30, 2, Q("7.5 mm")))
sketch2.addConstraint(Sketcher.Constraint("DistanceX", 52, 2, 52, 1, Q("20.7 mm")))
sketch2.addConstraint(Sketcher.Constraint("DistanceY", 23, 1, 23, 2, Q("5.5 mm")))
sketch2.addConstraint(Sketcher.Constraint("DistanceX", 8, 1, 8, 2, Q("3.75 mm")))
sketch2.addConstraint(Sketcher.Constraint("DistanceX", 20, 2, 20, 1, Q("27.55 mm")))
sketch2.addConstraint(Sketcher.Constraint("DistanceX", 56, 2, 56, 1, Q("5.75 mm")))
sketch2.addConstraint(Sketcher.Constraint("DistanceY", 27, 1, 27, 2, Q("0.95 mm")))
sketch2.addConstraint(Sketcher.Constraint("DistanceX", 21, 3, -1, 1, Q("90.8 mm")))
sketch2.addConstraint(Sketcher.Constraint("DistanceX", 32, 2, -1, 1, Q("52.8 mm")))
sketch2.addConstraint(Sketcher.Constraint("DistanceX", 56, 2, -1, 1, Q("50.8 mm")))
sketch2.addConstraint(Sketcher.Constraint("DistanceX", 68, 2, -1, 1, Q("104.6 mm")))
pad2 = body.newObject("PartDesign::Pad", "Pad001")
pad2.Profile = sketch2
pad2.Length = 20
pad2.Reversed = True

# Sketch on XZ plane
sketch3 = body.newObject("Sketcher::SketchObject", "Sketch002")
sketch3.AttachmentSupport = (doc.getObject("XZ_Plane"), [""])
sketch3.MapMode = "FlatFace"
add_polygon(sketch3, [(-32.5, -13), (-32.5, -10), (-26.8, -10), (-26.8, -13)])  # lines 0-3
add_polygon(sketch3, [(-50.8, -10), (-45, -10), (-45, -13), (-50.8, -13)])  # lines 4-7
add_polygon(sketch3, [(-8, -10), (0, -10), (0, -13), (-8, -13)])  # lines 8-11
add_polygon(sketch3, [(-24.8, -10), (-9.8, -10), (-9.8, -13), (-24.8, -13)])  # lines 12-15
add_polygon(sketch3, [(-112.6, -14.1), (-112.6, -8.9), (-104.6, -8.9), (-104.6, -14.1)])  # lines 16-19
sketch3.addGeometry(Part.LineSegment(App.Vector(-101.3, -14.1, 0), App.Vector(-101.3, -8.9, 0)), False)  # 20
sketch3.addGeometry(Part.LineSegment(App.Vector(-101.3, -8.9, 0), App.Vector(-93.8, -8.9, 0)), False)  # 21
sketch3.addGeometry(Part.ArcOfCircle(Part.Circle(App.Vector(-93.8, -11.5, 0), App.Vector(0, 0, 1), 2.6), math.radians(35), math.radians(90)), False)  # 22
sketch3.addGeometry(Part.LineSegment(App.Vector(-91.7, -10, 0), App.Vector(-52.8, -10, 0)), False)  # 23
sketch3.addGeometry(Part.LineSegment(App.Vector(-52.8, -10, 0), App.Vector(-52.8, -13, 0)), False)  # 24
sketch3.addGeometry(Part.LineSegment(App.Vector(-52.8, -13, 0), App.Vector(-91.7, -13, 0)), False)  # 25
sketch3.addGeometry(Part.ArcOfCircle(Part.Circle(App.Vector(-93.8, -11.5, 0), App.Vector(0, 0, 1), 2.6), math.radians(-90), math.radians(-35)), False)  # 26
sketch3.addGeometry(Part.LineSegment(App.Vector(-93.8, -14.1, 0), App.Vector(-101.3, -14.1, 0)), False)  # 27
sketch3.addConstraint(Sketcher.Constraint("Coincident", 20, 2, 21, 1))
sketch3.addConstraint(Sketcher.Constraint("Tangent", 21, 2, 22, 2))
sketch3.addConstraint(Sketcher.Constraint("Coincident", 22, 1, 23, 1))
sketch3.addConstraint(Sketcher.Constraint("Coincident", 23, 2, 24, 1))
sketch3.addConstraint(Sketcher.Constraint("Coincident", 24, 2, 25, 1))
sketch3.addConstraint(Sketcher.Constraint("Coincident", 25, 2, 26, 2))
sketch3.addConstraint(Sketcher.Constraint("Tangent", 26, 1, 27, 1))
sketch3.addConstraint(Sketcher.Constraint("Coincident", 27, 2, 20, 1))
sketch3.addConstraint(Sketcher.Constraint("Vertical", 0))
sketch3.addConstraint(Sketcher.Constraint("Horizontal", 1))
sketch3.addConstraint(Sketcher.Constraint("Vertical", 2))
sketch3.addConstraint(Sketcher.Constraint("Horizontal", 3))
sketch3.addConstraint(Sketcher.Constraint("Horizontal", 4))
sketch3.addConstraint(Sketcher.Constraint("Vertical", 5))
sketch3.addConstraint(Sketcher.Constraint("Horizontal", 6))
sketch3.addConstraint(Sketcher.Constraint("Vertical", 7))
sketch3.addConstraint(Sketcher.Constraint("Horizontal", 8))
sketch3.addConstraint(Sketcher.Constraint("Vertical", 9))
sketch3.addConstraint(Sketcher.Constraint("Horizontal", 10))
sketch3.addConstraint(Sketcher.Constraint("Vertical", 11))
sketch3.addConstraint(Sketcher.Constraint("Horizontal", 12))
sketch3.addConstraint(Sketcher.Constraint("Vertical", 13))
sketch3.addConstraint(Sketcher.Constraint("Horizontal", 14))
sketch3.addConstraint(Sketcher.Constraint("Vertical", 15))
sketch3.addConstraint(Sketcher.Constraint("Vertical", 16))
sketch3.addConstraint(Sketcher.Constraint("Horizontal", 17))
sketch3.addConstraint(Sketcher.Constraint("Vertical", 18))
sketch3.addConstraint(Sketcher.Constraint("Horizontal", 19))
sketch3.addConstraint(Sketcher.Constraint("Vertical", 20))
sketch3.addConstraint(Sketcher.Constraint("Horizontal", 21))
sketch3.addConstraint(Sketcher.Constraint("Horizontal", 23))
sketch3.addConstraint(Sketcher.Constraint("Vertical", 24))
sketch3.addConstraint(Sketcher.Constraint("Horizontal", 25))
sketch3.addConstraint(Sketcher.Constraint("Horizontal", 27))
sketch3.addConstraint(Sketcher.Constraint("Coincident", 26, 3, 22, 3))
sketch3.addConstraint(Sketcher.Constraint("Equal", 22, 26))
sketch3.addConstraint(Sketcher.Constraint("PointOnObject", 8, 2, -2))
sketch3.addConstraint(Sketcher.Constraint("Horizontal", 1, 2, 4, 2))
sketch3.addConstraint(Sketcher.Constraint("Horizontal", 3, 2, 5, 2))
sketch3.addConstraint(Sketcher.Constraint("Horizontal", 7, 2, 8, 2))
sketch3.addConstraint(Sketcher.Constraint("Horizontal", 6, 2, 9, 2))
sketch3.addConstraint(Sketcher.Constraint("Horizontal", 11, 2, 12, 2))
sketch3.addConstraint(Sketcher.Constraint("Horizontal", 10, 2, 13, 2))
sketch3.addConstraint(Sketcher.Constraint("Horizontal", 17, 2, 20, 2))
sketch3.addConstraint(Sketcher.Constraint("Horizontal", 15, 2, 22, 1))
sketch3.addConstraint(Sketcher.Constraint("Horizontal", 14, 2, 24, 2))
sketch3.addConstraint(Sketcher.Constraint("Horizontal", 19, 2, 26, 1))
sketch3.addConstraint(Sketcher.Constraint("Vertical", 22, 1, 25, 2))
sketch3.addConstraint(Sketcher.Constraint("Equal", 3, 4))
sketch3.addConstraint(Sketcher.Constraint("Equal", 10, 17))
sketch3.addConstraint(Sketcher.Constraint("Radius", 22, Q("2.6 mm")))
sketch3.addConstraint(Sketcher.Constraint("DistanceX", 8, 1, 8, 2, Q("8 mm")))
sketch3.addConstraint(Sketcher.Constraint("DistanceY", 0, 1, 0, 2, Q("3 mm")))
sketch3.addConstraint(Sketcher.Constraint("DistanceY", 0, 2, -1, 1, Q("10 mm")))
sketch3.addConstraint(Sketcher.Constraint("DistanceX", 2, 2, 14, 2, Q("2 mm")))
sketch3.addConstraint(Sketcher.Constraint("DistanceX", 23, 2, 7, 2, Q("2 mm")))
sketch3.addConstraint(Sketcher.Constraint("DistanceX", 4, 2, 0, 2, Q("12.5 mm")))
sketch3.addConstraint(Sketcher.Constraint("DistanceX", 12, 2, 11, 2, Q("1.8 mm")))
sketch3.addConstraint(Sketcher.Constraint("DistanceX", 12, 1, 12, 2, Q("15 mm")))
sketch3.addConstraint(Sketcher.Constraint("DistanceX", 21, 1, 21, 2, Q("7.5 mm")))
sketch3.addConstraint(Sketcher.Constraint("DistanceX", 22, 3, 1, 2, Q("67 mm")))
sketch3.addConstraint(Sketcher.Constraint("DistanceX", 6, 2, 2, 2, Q("24 mm")))
sketch3.addConstraint(Sketcher.Constraint("DistanceX", 16, 2, -1, 1, Q("112.6 mm")))
pad3 = body.newObject("PartDesign::Pad", "Pad002")
pad3.Profile = sketch3
pad3.Length = 5
pad3.Reversed = True

# Sketch on XZ plane
sketch4 = body.newObject("Sketcher::SketchObject", "Sketch003")
sketch4.AttachmentSupport = (doc.getObject("XZ_Plane"), [""])
sketch4.MapMode = "FlatFace"
add_polygon(sketch4, [(-50, -5.2), (-48, -5.2), (-48, -8.4), (-50, -8.4)])  # lines 0-3
add_polygon(sketch4, [(-50, -14.6), (-48, -14.6), (-48, -17.8), (-50, -17.8)])  # lines 4-7
sketch4.addConstraint(Sketcher.Constraint("Horizontal", 0))
sketch4.addConstraint(Sketcher.Constraint("Vertical", 1))
sketch4.addConstraint(Sketcher.Constraint("Horizontal", 2))
sketch4.addConstraint(Sketcher.Constraint("Vertical", 3))
sketch4.addConstraint(Sketcher.Constraint("Horizontal", 4))
sketch4.addConstraint(Sketcher.Constraint("Vertical", 5))
sketch4.addConstraint(Sketcher.Constraint("Horizontal", 6))
sketch4.addConstraint(Sketcher.Constraint("Vertical", 7))
sketch4.addConstraint(Sketcher.Constraint("Vertical", 1, 2, 4, 2))
sketch4.addConstraint(Sketcher.Constraint("Vertical", 3, 2, 6, 2))
sketch4.addConstraint(Sketcher.Constraint("Equal", 3, 5))
sketch4.addConstraint(Sketcher.Constraint("DistanceX", 0, 1, 0, 2, Q("2 mm")))
sketch4.addConstraint(Sketcher.Constraint("DistanceY", 1, 2, 1, 1, Q("3.2 mm")))
sketch4.addConstraint(Sketcher.Constraint("DistanceY", 4, 2, 1, 2, Q("6.1 mm")))
sketch4.addConstraint(Sketcher.Constraint("DistanceX", 0, 2, -1, 1, Q("48.05 mm")))
sketch4.addConstraint(Sketcher.Constraint("DistanceY", 0, 2, -1, 1, Q("5.25 mm")))
pad4 = body.newObject("PartDesign::Pad", "Pad003")
pad4.Profile = sketch4
pad4.Length = 9
pad4.Reversed = True

# Sketch on YZ plane
sketch5 = body.newObject("Sketcher::SketchObject", "Sketch004")
sketch5.AttachmentSupport = (doc.getObject("YZ_Plane"), [""])
sketch5.MapMode = "FlatFace"
sketch5.addGeometry(Part.Circle(App.Vector(10, -11.5, 0), App.Vector(0, 0, 1), 1), False)
sketch5.addConstraint(Sketcher.Constraint("Diameter", 0, Q("2 mm")))
sketch5.addConstraint(Sketcher.Constraint("DistanceX", -1, 1, 0, 3, Q("10 mm")))
sketch5.addConstraint(Sketcher.Constraint("DistanceY", 0, 3, -1, 1, Q("11.5 mm")))
doc.recompute()
hole = body.newObject("PartDesign::Hole", "Hole")
hole.Profile = sketch5
hole.ThreadType = "None"
hole.Diameter = 2
hole.DepthType = "ThroughAll"

doc.recompute()
